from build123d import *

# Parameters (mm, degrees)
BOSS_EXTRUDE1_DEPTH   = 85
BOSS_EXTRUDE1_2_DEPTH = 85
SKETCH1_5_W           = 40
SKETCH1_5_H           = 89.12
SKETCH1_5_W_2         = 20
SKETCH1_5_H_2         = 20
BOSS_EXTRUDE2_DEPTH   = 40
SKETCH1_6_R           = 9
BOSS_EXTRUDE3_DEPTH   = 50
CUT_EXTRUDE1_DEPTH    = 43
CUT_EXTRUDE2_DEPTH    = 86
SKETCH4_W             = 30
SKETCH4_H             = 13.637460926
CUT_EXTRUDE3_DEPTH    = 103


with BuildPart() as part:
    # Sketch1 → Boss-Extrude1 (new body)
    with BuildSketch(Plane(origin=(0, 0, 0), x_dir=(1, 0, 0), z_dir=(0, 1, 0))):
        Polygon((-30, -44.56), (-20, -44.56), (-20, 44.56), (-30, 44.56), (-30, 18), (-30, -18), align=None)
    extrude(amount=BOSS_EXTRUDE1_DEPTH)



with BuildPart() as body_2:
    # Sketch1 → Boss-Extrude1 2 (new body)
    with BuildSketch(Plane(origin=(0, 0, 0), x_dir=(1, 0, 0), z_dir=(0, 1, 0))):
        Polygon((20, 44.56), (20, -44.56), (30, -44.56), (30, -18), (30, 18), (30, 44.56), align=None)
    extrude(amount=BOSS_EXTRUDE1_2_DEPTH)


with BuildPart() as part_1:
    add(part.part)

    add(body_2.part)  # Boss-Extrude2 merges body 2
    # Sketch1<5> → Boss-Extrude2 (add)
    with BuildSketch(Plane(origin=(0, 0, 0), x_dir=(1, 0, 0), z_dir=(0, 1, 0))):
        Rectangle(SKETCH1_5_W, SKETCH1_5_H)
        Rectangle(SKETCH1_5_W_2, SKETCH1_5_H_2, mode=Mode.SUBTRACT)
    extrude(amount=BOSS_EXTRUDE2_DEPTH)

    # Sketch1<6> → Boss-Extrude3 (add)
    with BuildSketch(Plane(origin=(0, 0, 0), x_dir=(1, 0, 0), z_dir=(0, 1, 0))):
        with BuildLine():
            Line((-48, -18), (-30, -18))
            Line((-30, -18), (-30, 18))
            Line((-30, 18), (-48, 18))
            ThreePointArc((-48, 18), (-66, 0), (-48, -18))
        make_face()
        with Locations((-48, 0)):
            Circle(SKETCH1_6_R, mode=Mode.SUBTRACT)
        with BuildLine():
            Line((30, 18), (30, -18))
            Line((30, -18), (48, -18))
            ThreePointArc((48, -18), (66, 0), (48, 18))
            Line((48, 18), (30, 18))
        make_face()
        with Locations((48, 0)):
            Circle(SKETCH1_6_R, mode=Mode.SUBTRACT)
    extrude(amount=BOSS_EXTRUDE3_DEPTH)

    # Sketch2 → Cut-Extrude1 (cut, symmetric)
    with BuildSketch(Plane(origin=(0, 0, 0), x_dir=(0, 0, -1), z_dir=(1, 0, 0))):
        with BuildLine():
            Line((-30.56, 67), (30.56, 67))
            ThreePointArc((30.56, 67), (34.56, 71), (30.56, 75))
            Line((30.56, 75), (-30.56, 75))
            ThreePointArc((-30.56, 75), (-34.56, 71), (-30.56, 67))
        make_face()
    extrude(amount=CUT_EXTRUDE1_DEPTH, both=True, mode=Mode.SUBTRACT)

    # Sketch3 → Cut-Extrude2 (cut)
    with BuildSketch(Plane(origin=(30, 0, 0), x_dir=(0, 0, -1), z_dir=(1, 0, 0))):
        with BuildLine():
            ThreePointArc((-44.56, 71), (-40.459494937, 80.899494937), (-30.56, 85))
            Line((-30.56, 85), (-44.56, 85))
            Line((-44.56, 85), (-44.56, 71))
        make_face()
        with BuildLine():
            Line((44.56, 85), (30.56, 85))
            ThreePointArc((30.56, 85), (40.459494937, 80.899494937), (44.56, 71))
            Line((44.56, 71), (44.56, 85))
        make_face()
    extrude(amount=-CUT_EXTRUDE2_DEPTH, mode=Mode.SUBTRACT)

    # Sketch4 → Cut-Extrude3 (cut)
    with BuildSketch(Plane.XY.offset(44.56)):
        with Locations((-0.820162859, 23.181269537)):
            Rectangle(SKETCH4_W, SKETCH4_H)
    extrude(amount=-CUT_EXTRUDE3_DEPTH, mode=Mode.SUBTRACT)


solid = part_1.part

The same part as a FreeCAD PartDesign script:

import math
import FreeCAD as App
import Part
import Sketcher
Q = App.Units.Quantity


def add_polygon(sketch, points):
    """Adds a closed chain of lines whose ends are joined by coincident constraints."""
    first, n = sketch.GeometryCount, len(points)
    for a, b in zip(points, points[1:] + points[:1]):
        sketch.addGeometry(Part.LineSegment(App.Vector(*a, 0), App.Vector(*b, 0)), False)
    for i in range(n):
        sketch.addConstraint(Sketcher.Constraint("Coincident", first + i, 2, first + (i + 1) % n, 1))

doc = App.newDocument("Part")
body = doc.addObject("PartDesign::Body", "Body")

# Sketch on XZ plane
sketch1 = doc.addObject("Sketcher::SketchObject", "Sketch")
body.addObject(sketch1)
sketch1.AttachmentSupport = (doc.XZ_Plane, [""])
sketch1.MapMode = "FlatFace"
add_polygon(sketch1, [(-30, 45), (-20, 45), (-20, -45), (-30, -45)])  # lines 0-3
sketch1.addConstraint([
    Sketcher.Constraint("Horizontal", 0),
    Sketcher.Constraint("Vertical", 1),
    Sketcher.Constraint("Horizontal", 2),
    Sketcher.Constraint("Vertical", 3),
    Sketcher.Constraint("DistanceX", 0, 1, 0, 2, Q("10 mm")),
    Sketcher.Constraint("DistanceX", 0, 2, -1, 1, Q("20 mm")),
    Sketcher.Constraint("DistanceY", 1, 2, 1, 1, Q("89.12 mm")),
    Sketcher.Constraint("DistanceY", -1, 1, 0, 2, Q("44.56 mm")),
])
pad1 = doc.addObject("PartDesign::Pad", "Pad")
body.addObject(pad1)
pad1.Profile = sketch1
pad1.Length = 85
pad1.Reversed = True
body2 = doc.addObject("PartDesign::Body", "Body001")

# Sketch on XZ plane
sketch2 = doc.addObject("Sketcher::SketchObject", "Sketch001")
body2.addObject(sketch2)
sketch2.AttachmentSupport = (doc.getObject("XZ_Plane001"), [""])
sketch2.MapMode = "FlatFace"
add_polygon(sketch2, [(20, -45), (20, 45), (30, 45), (30, -45)])  # lines 0-3
sketch2.addConstraint([
    Sketcher.Constraint("Vertical", 0),
    Sketcher.Constraint("Horizontal", 1),
    Sketcher.Constraint("Vertical", 2),
    Sketcher.Constraint("Horizontal", 3),
    Sketcher.Constraint("DistanceX", 1, 1, 1, 2, Q("10 mm")),
    Sketcher.Constraint("DistanceX", -1, 1, 0, 2, Q("20 mm")),
    Sketcher.Constraint("DistanceY", 0, 1, 0, 2, Q("89.12 mm")),
    Sketcher.Constraint("DistanceY", -1, 1, 0, 2, Q("44.56 mm")),
])
pad2 = doc.addObject("PartDesign::Pad", "Pad001")
body2.addObject(pad2)
pad2.Profile = sketch2
pad2.Length = 85
pad2.Reversed = True
body.AllowCompound = True
doc.recompute()

boolean = doc.addObject("PartDesign::Boolean", "Boolean")
body.addObject(boolean)
boolean.Type = "Fuse"
boolean.addObjects([body2])

# Sketch on XZ plane
sketch3 = doc.addObject("Sketcher::SketchObject", "Sketch002")
body.addObject(sketch3)
sketch3.AttachmentSupport = (doc.XZ_Plane, [""])
sketch3.MapMode = "FlatFace"
add_polygon(sketch3, [(-20, -45), (-20, 45), (20, 45), (20, -45)])  # lines 0-3
add_polygon(sketch3, [(10, 10), (-10, 10), (-10, -10), (10, -10)])  # lines 4-7
sketch3.addConstraint([
    Sketcher.Constraint("Vertical", 0),
    Sketcher.Constraint("Horizontal", 1),
    Sketcher.Constraint("Vertical", 2),
    Sketcher.Constraint("Horizontal", 3),
    Sketcher.Constraint("Horizontal", 4),
    Sketcher.Constraint("Vertical", 5),
    Sketcher.Constraint("Horizontal", 6),
    Sketcher.Constraint("Vertical", 7),
    Sketcher.Constraint("Symmetric", 0, 2, 2, 2, -1, 1),
    Sketcher.Constraint("Symmetric", 4, 2, 6, 2, -1, 1),
    Sketcher.Constraint("Equal", 6, 5),
    Sketcher.Constraint("DistanceX", 1, 1, 1, 2, Q("40 mm")),
    Sketcher.Constraint("DistanceX", 4, 2, 4, 1, Q("20 mm")),
    Sketcher.Constraint("DistanceY", 0, 1, 0, 2, Q("89.12 mm")),
])
pad3 = doc.addObject("PartDesign::Pad", "Pad002")
body.addObject(pad3)
pad3.Profile = sketch3
pad3.Length = 40
pad3.Reversed = True

# Sketch on XZ plane
sketch4 = doc.addObject("Sketcher::SketchObject", "Sketch003")
body.addObject(sketch4)
sketch4.AttachmentSupport = (doc.XZ_Plane, [""])
sketch4.MapMode = "FlatFace"
sketch4.addGeometry([
    Part.LineSegment(App.Vector(-48, 18, 0), App.Vector(-30, 18, 0)),  # 0
    Part.LineSegment(App.Vector(-30, 18, 0), App.Vector(-30, -18, 0)),  # 1
    Part.LineSegment(App.Vector(-30, -18, 0), App.Vector(-48, -18, 0)),  # 2
    Part.ArcOfCircle(Part.Circle(App.Vector(-48, 0, 0), App.Vector(0, 0, 1), 18), math.radians(90), math.radians(270)),  # 3
    Part.Circle(App.Vector(-48, 0, 0), App.Vector(0, 0, 1), 9),  # 4
    Part.LineSegment(App.Vector(30, -18, 0), App.Vector(30, 18, 0)),  # 5
    Part.LineSegment(App.Vector(30, 18, 0), App.Vector(48, 18, 0)),  # 6
    Part.ArcOfCircle(Part.Circle(App.Vector(48, 0, 0), App.Vector(0, 0, 1), 18), math.radians(-90), math.radians(90)),  # 7
    Part.LineSegment(App.Vector(48, -18, 0), App.Vector(30, -18, 0)),  # 8
    Part.Circle(App.Vector(48, 0, 0), App.Vector(0, 0, 1), 9),  # 9
], False)
sketch4.addConstraint([
    Sketcher.Constraint("Coincident", 0, 2, 1, 1),
    Sketcher.Constraint("Coincident", 1, 2, 2, 1),
    Sketcher.Constraint("Tangent", 2, 2, 3, 2),
    Sketcher.Constraint("Tangent", 3, 1, 0, 1),
    Sketcher.Constraint("Coincident", 5, 2, 6, 1),
    Sketcher.Constraint("Tangent", 6, 2, 7, 2),
    Sketcher.Constraint("Tangent", 7, 1, 8, 1),
    Sketcher.Constraint("Coincident", 8, 2, 5, 1),
    Sketcher.Constraint("Horizontal", 0),
    Sketcher.Constraint("Vertical", 1),
    Sketcher.Constraint("Horizontal", 2),
    Sketcher.Constraint("Vertical", 5),
    Sketcher.Constraint("Horizontal", 6),
    Sketcher.Constraint("Horizontal", 8),
    Sketcher.Constraint("Coincident", 4, 3, 3, 3),
    Sketcher.Constraint("Coincident", 9, 3, 7, 3),
    Sketcher.Constraint("Equal", 3, 7),
    Sketcher.Constraint("Equal", 4, 9),
    Sketcher.Constraint("Symmetric", 3, 3, 7, 3, -1, 1),
    Sketcher.Constraint("Symmetric", 0, 2, 5, 2, -2),
    Sketcher.Constraint("Diameter", 4, Q("18 mm")),
    Sketcher.Constraint("Radius", 3, Q("18 mm")),
    Sketcher.Constraint("DistanceX", 0, 1, 0, 2, Q("18 mm")),
    Sketcher.Constraint("DistanceX", 3, 3, -1, 1, Q("48 mm")),
])
pad4 = doc.addObject("PartDesign::Pad", "Pad003")
body.addObject(pad4)
pad4.Profile = sketch4
pad4.Length = 50
pad4.Reversed = True

# Sketch on YZ plane
sketch5 = doc.addObject("Sketcher::SketchObject", "Sketch004")
body.addObject(sketch5)
sketch5.AttachmentSupport = (doc.YZ_Plane, [""])
sketch5.MapMode = "FlatFace"
sketch5.addGeometry([
    Part.LineSegment(App.Vector(67, 30.6, 0), App.Vector(67, -30.6, 0)),
    Part.ArcOfCircle(Part.Circle(App.Vector(71, -30.6, 0), App.Vector(0, 0, 1), 4), math.radians(180), math.radians(360)),
    Part.LineSegment(App.Vector(75, -30.6, 0), App.Vector(75, 30.6, 0)),
    Part.ArcOfCircle(Part.Circle(App.Vector(71, 30.6, 0), App.Vector(0, 0, 1), 4), math.radians(0), math.radians(180)),
], False)
sketch5.addConstraint([
    Sketcher.Constraint("Tangent", 0, 2, 1, 1),
    Sketcher.Constraint("Tangent", 1, 2, 2, 1),
    Sketcher.Constraint("Tangent", 2, 2, 3, 1),
    Sketcher.Constraint("Tangent", 3, 2, 0, 1),
    Sketcher.Constraint("Vertical", 0),
    Sketcher.Constraint("Vertical", 2),
    Sketcher.Constraint("Radius", 1, Q("4 mm")),
    Sketcher.Constraint("DistanceX", -1, 1, 1, 3, Q("71 mm")),
    Sketcher.Constraint("DistanceY", 0, 2, 0, 1, Q("61.12 mm")),
    Sketcher.Constraint("DistanceY", 1, 3, -1, 1, Q("30.56 mm")),
])
pocket1 = doc.addObject("PartDesign::Pocket", "Pocket")
body.addObject(pocket1)
pocket1.Profile = sketch5
pocket1.Length = 86
pocket1.Midplane = True

# Sketch on YZ plane
sketch6 = doc.addObject("Sketcher::SketchObject", "Sketch005")
body.addObject(sketch6)
sketch6.AttachmentSupport = (doc.YZ_Plane, [""])
sketch6.MapMode = "FlatFace"
sketch6.AttachmentOffset = App.Placement(App.Vector(0, 0, 30), App.Rotation())
sketch6.addGeometry([
    Part.ArcOfCircle(Part.Circle(App.Vector(71, 31, 0), App.Vector(0, 0, 1), 14), math.radians(0), math.radians(90)),  # 0
    Part.LineSegment(App.Vector(85, 31, 0), App.Vector(85, 45, 0)),  # 1
    Part.LineSegment(App.Vector(85, 45, 0), App.Vector(71, 45, 0)),  # 2
    Part.LineSegment(App.Vector(85, -45, 0), App.Vector(85, -31, 0)),  # 3
    Part.ArcOfCircle(Part.Circle(App.Vector(71, -31, 0), App.Vector(0, 0, 1), 14), math.radians(-90), math.radians(0)),  # 4
    Part.LineSegment(App.Vector(71, -45, 0), App.Vector(85, -45, 0)),  # 5
], False)
sketch6.addConstraint([
    Sketcher.Constraint("Tangent", 0, 1, 1, 1),
    Sketcher.Constraint("Coincident", 1, 2, 2, 1),
    Sketcher.Constraint("Tangent", 2, 2, 0, 2),
    Sketcher.Constraint("Tangent", 3, 2, 4, 2),
    Sketcher.Constraint("Tangent", 4, 1, 5, 1),
    Sketcher.Constraint("Coincident", 5, 2, 3, 1),
    Sketcher.Constraint("Vertical", 1),
    Sketcher.Constraint("Horizontal", 2),
    Sketcher.Constraint("Vertical", 3),
    Sketcher.Constraint("Horizontal", 5),
    Sketcher.Constraint("Equal", 0, 4),
    Sketcher.Constraint("Symmetric", 0, 3, 4, 3, -1),
    Sketcher.Constraint("Radius", 0, Q("14 mm")),
    Sketcher.Constraint("DistanceX", -1, 1, 0, 3, Q("71 mm")),
    Sketcher.Constraint("DistanceY", -1, 1, 0, 3, Q("30.56 mm")),
])
pocket2 = doc.addObject("PartDesign::Pocket", "Pocket001")
body.addObject(pocket2)
pocket2.Profile = sketch6
pocket2.Length = 86

# Sketch on XY plane
sketch7 = doc.addObject("Sketcher::SketchObject", "Sketch006")
body.addObject(sketch7)
sketch7.AttachmentSupport = (doc.XY_Plane, [""])
sketch7.MapMode = "FlatFace"
sketch7.AttachmentOffset = App.Placement(App.Vector(0, 0, 44.56), App.Rotation())
add_polygon(sketch7, [(-16, 30), (-16, 16), (14, 16), (14, 30)])  # lines 0-3
sketch7.addConstraint([
    Sketcher.Constraint("Vertical", 0),
    Sketcher.Constraint("Horizontal", 1),
    Sketcher.Constraint("Vertical", 2),
    Sketcher.Constraint("Horizontal", 3),
    Sketcher.Constraint("DistanceX", 1, 1, 1, 2, Q("30 mm")),
    Sketcher.Constraint("DistanceY", -1, 1, 2, 2, Q("30 mm")),
    Sketcher.Constraint("DistanceY", 0, 2, 0, 1, Q("13.637461 mm")),
    Sketcher.Constraint("DistanceX", 0, 2, -1, 1, Q("15.820163 mm")),
])
pocket3 = doc.addObject("PartDesign::Pocket", "Pocket002")
body.addObject(pocket3)
pocket3.Profile = sketch7
pocket3.Length = 103

doc.recompute()
